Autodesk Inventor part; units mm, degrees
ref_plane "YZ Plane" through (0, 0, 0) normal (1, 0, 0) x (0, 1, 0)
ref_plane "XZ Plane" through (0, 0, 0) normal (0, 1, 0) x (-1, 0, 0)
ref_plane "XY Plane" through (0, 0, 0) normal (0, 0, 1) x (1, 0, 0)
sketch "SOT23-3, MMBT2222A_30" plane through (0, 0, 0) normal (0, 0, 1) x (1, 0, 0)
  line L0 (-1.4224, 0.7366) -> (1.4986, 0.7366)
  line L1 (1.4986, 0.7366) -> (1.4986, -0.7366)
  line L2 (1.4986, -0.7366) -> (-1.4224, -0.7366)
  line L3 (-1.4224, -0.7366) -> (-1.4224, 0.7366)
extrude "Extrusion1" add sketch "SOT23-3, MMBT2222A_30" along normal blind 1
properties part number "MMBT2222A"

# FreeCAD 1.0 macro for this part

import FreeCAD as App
import Part
import Sketcher

V = App.Vector
Q = App.Units.Quantity


def add_polygon(sketch, points):
    """Adds a closed chain of lines whose ends are joined by coincident constraints."""
    first, n = sketch.GeometryCount, len(points)
    for a, b in zip(points, points[1:] + points[:1]):
        sketch.addGeometry(Part.LineSegment(App.Vector(*a, 0), App.Vector(*b, 0)), False)
    for i in range(n):
        sketch.addConstraint(Sketcher.Constraint("Coincident", first + i, 2, first + (i + 1) % n, 1))

doc = App.newDocument("Part")
body = doc.addObject("PartDesign::Body", "Body")

sketch1 = body.newObject("Sketcher::SketchObject", "Sketch")
sketch1.AttachmentSupport = (doc.getObject("XY_Plane"), [""])
sketch1.MapMode = "FlatFace"
add_polygon(sketch1, [(1.5, 0.7), (-1.4, 0.7), (-1.4, -0.7), (1.5, -0.7)])
sketch1.addConstraint(Sketcher.Constraint("Horizontal", 0))
sketch1.addConstraint(Sketcher.Constraint("Vertical", 1))
sketch1.addConstraint(Sketcher.Constraint("Horizontal", 2))
sketch1.addConstraint(Sketcher.Constraint("Vertical", 3))
sketch1.addConstraint(Sketcher.Constraint("DistanceX", 0, 2, 0, 1, Q("0.115 in")))
sketch1.addConstraint(Sketcher.Constraint("DistanceY", 1, 2, 1, 1, Q("0.058 in")))
sketch1.addConstraint(Sketcher.Constraint("DistanceX", 0, 2, -1, 1, Q("0.056 in")))
sketch1.addConstraint(Sketcher.Constraint("DistanceY", -1, 1, 0, 2, Q("0.029 in")))
pad1 = body.newObject("PartDesign::Pad", "Pad")
pad1.Profile = sketch1
pad1.Length = 1

doc.recompute()
